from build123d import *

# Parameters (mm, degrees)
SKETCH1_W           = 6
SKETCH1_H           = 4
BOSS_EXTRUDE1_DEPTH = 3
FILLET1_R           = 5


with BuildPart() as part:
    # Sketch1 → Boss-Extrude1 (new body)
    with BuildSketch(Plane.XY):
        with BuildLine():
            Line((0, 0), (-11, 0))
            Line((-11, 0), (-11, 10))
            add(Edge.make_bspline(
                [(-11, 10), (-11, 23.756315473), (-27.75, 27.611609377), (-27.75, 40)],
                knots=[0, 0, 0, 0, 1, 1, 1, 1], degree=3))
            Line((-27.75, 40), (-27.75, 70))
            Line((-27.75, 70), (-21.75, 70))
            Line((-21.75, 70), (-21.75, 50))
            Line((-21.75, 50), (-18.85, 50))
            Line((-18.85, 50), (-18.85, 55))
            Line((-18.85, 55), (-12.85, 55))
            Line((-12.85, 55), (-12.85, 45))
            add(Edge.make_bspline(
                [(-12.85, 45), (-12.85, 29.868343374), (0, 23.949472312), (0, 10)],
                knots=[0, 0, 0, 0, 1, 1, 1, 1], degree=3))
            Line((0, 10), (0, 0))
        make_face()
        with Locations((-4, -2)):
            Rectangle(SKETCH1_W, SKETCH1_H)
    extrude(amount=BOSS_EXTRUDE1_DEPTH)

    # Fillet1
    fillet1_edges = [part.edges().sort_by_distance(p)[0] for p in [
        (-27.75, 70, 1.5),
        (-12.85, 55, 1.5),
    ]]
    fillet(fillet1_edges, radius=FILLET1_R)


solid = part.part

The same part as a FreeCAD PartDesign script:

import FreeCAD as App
import Part
import Sketcher
from FreeCAD import Vector
Q = App.Units.Quantity


def edges_at(feature, points):
    """Names of the edges that pass closest to the given points."""
    edges = feature.Shape.Edges
    near = lambda p: min(range(len(edges)), key=lambda i: edges[i].distToShape(Part.Vertex(*p))[0])
    return sorted({f"Edge{near(p) + 1}" for p in points})

doc = App.newDocument("Part")
body = doc.addObject("PartDesign::Body", "Body")

# Sketch on XY plane
sketch1 = body.newObject("Sketcher::SketchObject", "Sketch")
sketch1.AttachmentSupport = (doc.getObject("XY_Plane"), [""])
sketch1.MapMode = "FlatFace"
sketch1.addGeometry([
    Part.LineSegment(Vector(-1, 0, 0), Vector(0, 0, 0)),  # 0
    Part.LineSegment(Vector(0, 0, 0), Vector(0, 10, 0)),  # 1
    Part.BSplineCurve([Vector(-12.85, 45, 0), Vector(-12.85, 29.868343, 0), Vector(0, 23.949472, 0), Vector(0, 10, 0)], [4, 4], [0, 1], False, 3, [1, 1, 1, 1], False),  # 2
    Part.LineSegment(Vector(-12.85, 45, 0), Vector(-12.85, 55, 0)),  # 3
    Part.LineSegment(Vector(-12.85, 55, 0), Vector(-18.85, 55, 0)),  # 4
    Part.LineSegment(Vector(-18.85, 55, 0), Vector(-18.85, 50, 0)),  # 5
    Part.LineSegment(Vector(-18.85, 50, 0), Vector(-21.75, 50, 0)),  # 6
    Part.LineSegment(Vector(-21.75, 50, 0), Vector(-21.75, 70, 0)),  # 7
    Part.LineSegment(Vector(-21.75, 70, 0), Vector(-27.75, 70, 0)),  # 8
    Part.LineSegment(Vector(-27.75, 70, 0), Vector(-27.75, 40, 0)),  # 9
    Part.BSplineCurve([Vector(-11, 10, 0), Vector(-11, 23.756315, 0), Vector(-27.75, 27.611609, 0), Vector(-27.75, 40, 0)], [4, 4], [0, 1], False, 3, [1, 1, 1, 1], False),  # 10
    Part.LineSegment(Vector(-11, 10, 0), Vector(-11, 0, 0)),  # 11
    Part.LineSegment(Vector(-11, 0, 0), Vector(-7, 0, 0)),  # 12
    Part.LineSegment(Vector(-7, 0, 0), Vector(-7, -4, 0)),  # 13
    Part.LineSegment(Vector(-7, -4, 0), Vector(-1, -4, 0)),  # 14
    Part.LineSegment(Vector(-1, -4, 0), Vector(-1, 0, 0)),  # 15
], False)
sketch1.addConstraint([
    Sketcher.Constraint("Block", 2),
    Sketcher.Constraint("Block", 10),
    Sketcher.Constraint("Coincident", 0, 2, 1, 1),
    Sketcher.Constraint("Coincident", 1, 2, 2, 2),
    Sketcher.Constraint("Coincident", 2, 1, 3, 1),
    Sketcher.Constraint("Coincident", 3, 2, 4, 1),
    Sketcher.Constraint("Coincident", 4, 2, 5, 1),
    Sketcher.Constraint("Coincident", 5, 2, 6, 1),
    Sketcher.Constraint("Coincident", 6, 2, 7, 1),
    Sketcher.Constraint("Coincident", 7, 2, 8, 1),
    Sketcher.Constraint("Coincident", 8, 2, 9, 1),
    Sketcher.Constraint("Coincident", 9, 2, 10, 2),
    Sketcher.Constraint("Coincident", 10, 1, 11, 1),
    Sketcher.Constraint("Coincident", 11, 2, 12, 1),
    Sketcher.Constraint("Coincident", 12, 2, 13, 1),
    Sketcher.Constraint("Coincident", 13, 2, 14, 1),
    Sketcher.Constraint("Coincident", 14, 2, 15, 1),
    Sketcher.Constraint("Coincident", 15, 2, 0, 1),
    Sketcher.Constraint("Horizontal", 0),
    Sketcher.Constraint("Vertical", 1),
    Sketcher.Constraint("Vertical", 3),
    Sketcher.Constraint("Horizontal", 4),
    Sketcher.Constraint("Vertical", 5),
    Sketcher.Constraint("Horizontal", 6),
    Sketcher.Constraint("Vertical", 7),
    Sketcher.Constraint("Horizontal", 8),
    Sketcher.Constraint("Vertical", 9),
    Sketcher.Constraint("Vertical", 11),
    Sketcher.Constraint("Horizontal", 12),
    Sketcher.Constraint("Vertical", 13),
    Sketcher.Constraint("Horizontal", 14),
    Sketcher.Constraint("Vertical", 15),
    Sketcher.Constraint("PointOnObject", 11, 2, -1),
    Sketcher.Constraint("PointOnObject", 15, 2, -1),
    Sketcher.Constraint("DistanceX", 0, 1, 0, 2, Q("1 mm")),
    Sketcher.Constraint("DistanceX", 4, 2, 4, 1, Q("6 mm")),
    Sketcher.Constraint("DistanceX", 8, 2, 8, 1, Q("6 mm")),
    Sketcher.Constraint("DistanceX", 12, 1, 12, 2, Q("4 mm")),
    Sketcher.Constraint("DistanceY", 3, 1, 3, 2, Q("10 mm")),
    Sketcher.Constraint("DistanceY", 5, 2, 5, 1, Q("5 mm")),
    Sketcher.Constraint("DistanceY", 7, 1, 7, 2, Q("20 mm")),
    Sketcher.Constraint("DistanceY", 13, 2, 13, 1, Q("4 mm")),
])
pad1 = body.newObject("PartDesign::Pad", "Pad")
pad1.Profile = sketch1
pad1.Length = 3
doc.recompute()

fillet = body.newObject("PartDesign::Fillet", "Fillet")
fillet.Base = (pad1, edges_at(pad1, [(-27.75, 70, 1.5), (-12.85, 55, 1.5)]))
fillet.Radius = 5

doc.recompute()
